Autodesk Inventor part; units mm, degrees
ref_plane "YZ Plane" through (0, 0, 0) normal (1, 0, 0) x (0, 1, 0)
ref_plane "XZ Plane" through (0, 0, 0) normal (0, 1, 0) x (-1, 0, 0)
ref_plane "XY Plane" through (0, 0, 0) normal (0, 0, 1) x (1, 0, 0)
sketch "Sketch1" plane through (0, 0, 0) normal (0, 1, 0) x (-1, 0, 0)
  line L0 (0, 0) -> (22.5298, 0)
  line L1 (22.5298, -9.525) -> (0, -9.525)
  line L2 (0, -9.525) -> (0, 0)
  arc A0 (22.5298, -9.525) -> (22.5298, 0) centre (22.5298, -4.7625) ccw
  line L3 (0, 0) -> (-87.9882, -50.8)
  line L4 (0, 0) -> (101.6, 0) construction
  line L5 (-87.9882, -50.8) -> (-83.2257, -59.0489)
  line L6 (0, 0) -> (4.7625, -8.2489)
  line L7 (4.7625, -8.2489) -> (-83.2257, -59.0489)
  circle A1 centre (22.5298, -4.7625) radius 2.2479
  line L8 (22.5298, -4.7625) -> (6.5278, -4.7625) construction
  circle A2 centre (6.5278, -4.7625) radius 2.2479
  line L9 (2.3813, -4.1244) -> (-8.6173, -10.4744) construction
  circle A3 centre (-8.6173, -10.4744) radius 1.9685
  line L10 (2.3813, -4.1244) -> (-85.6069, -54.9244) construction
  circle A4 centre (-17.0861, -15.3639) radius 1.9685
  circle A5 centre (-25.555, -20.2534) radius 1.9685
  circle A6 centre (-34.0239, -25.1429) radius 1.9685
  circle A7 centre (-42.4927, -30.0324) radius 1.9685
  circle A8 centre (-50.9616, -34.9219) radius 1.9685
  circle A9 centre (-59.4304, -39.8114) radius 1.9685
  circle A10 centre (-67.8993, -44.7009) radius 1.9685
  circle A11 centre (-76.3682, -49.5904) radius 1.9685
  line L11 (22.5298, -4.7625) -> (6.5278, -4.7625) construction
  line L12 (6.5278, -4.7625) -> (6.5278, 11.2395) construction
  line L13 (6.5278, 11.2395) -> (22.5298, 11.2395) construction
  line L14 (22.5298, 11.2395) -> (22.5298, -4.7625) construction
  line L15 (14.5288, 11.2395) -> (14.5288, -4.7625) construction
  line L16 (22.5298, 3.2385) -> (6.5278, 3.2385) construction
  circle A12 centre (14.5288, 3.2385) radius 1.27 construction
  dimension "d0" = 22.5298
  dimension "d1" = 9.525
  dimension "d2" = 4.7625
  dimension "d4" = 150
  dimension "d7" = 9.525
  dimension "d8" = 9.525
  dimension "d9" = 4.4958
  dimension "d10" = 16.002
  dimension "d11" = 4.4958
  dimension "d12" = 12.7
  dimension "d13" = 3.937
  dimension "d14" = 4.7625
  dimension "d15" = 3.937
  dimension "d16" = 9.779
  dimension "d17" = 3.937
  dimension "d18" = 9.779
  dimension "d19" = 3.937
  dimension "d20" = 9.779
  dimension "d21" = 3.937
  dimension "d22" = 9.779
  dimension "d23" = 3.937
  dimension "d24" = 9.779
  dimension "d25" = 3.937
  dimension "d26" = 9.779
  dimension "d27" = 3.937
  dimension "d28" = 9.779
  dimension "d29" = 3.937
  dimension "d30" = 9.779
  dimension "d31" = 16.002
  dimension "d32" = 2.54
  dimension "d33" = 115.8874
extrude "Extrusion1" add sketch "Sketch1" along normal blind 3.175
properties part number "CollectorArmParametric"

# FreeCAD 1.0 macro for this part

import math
import FreeCAD as App
import Part
import Sketcher

V = App.Vector
Q = App.Units.Quantity

doc = App.newDocument("Part")
body = doc.addObject("PartDesign::Body", "Body")

# Sketch on XZ plane
sketch1 = body.newObject("Sketcher::SketchObject", "Sketch")
sketch1.AttachmentSupport = (doc.getObject("XZ_Plane"), [""])
sketch1.MapMode = "FlatFace"
sketch1.addGeometry([
    Part.LineSegment(V(-22.5, 0, 0), V(0, 0, 0)),  # 0
    Part.LineSegment(V(0, 0, 0), V(88, -50.8, 0)),  # 1
    Part.LineSegment(V(88, -50.8, 0), V(83.2, -59, 0)),  # 2
    Part.LineSegment(V(83.2, -59, 0), V(-2.6, -9.5, 0)),  # 3
    Part.LineSegment(V(-2.6, -9.5, 0), V(-22.5, -9.5, 0)),  # 4
    Part.ArcOfCircle(Part.Circle(V(-22.5, -4.8, 0), V(0, 0, 1), 4.8), math.radians(90), math.radians(270)),  # 5
    Part.Circle(V(-6.5, -4.8, 0), V(0, 0, 1), 2.2),  # 6
    Part.Circle(V(-22.5, -4.8, 0), V(0, 0, 1), 2.2),  # 7
    Part.Circle(V(17.1, -15.4, 0), V(0, 0, 1), 2),  # 8
    Part.Circle(V(8.6, -10.5, 0), V(0, 0, 1), 2),  # 9
    Part.Circle(V(76.4, -49.6, 0), V(0, 0, 1), 2),  # 10
    Part.Circle(V(67.9, -44.7, 0), V(0, 0, 1), 2),  # 11
    Part.Circle(V(59.4, -39.8, 0), V(0, 0, 1), 2),  # 12
    Part.Circle(V(51, -34.9, 0), V(0, 0, 1), 2),  # 13
    Part.Circle(V(42.5, -30, 0), V(0, 0, 1), 2),  # 14
    Part.Circle(V(34, -25.1, 0), V(0, 0, 1), 2),  # 15
    Part.Circle(V(25.6, -20.3, 0), V(0, 0, 1), 2),  # 16
], False)
sketch1.addConstraint([
    Sketcher.Constraint("Coincident", 0, 2, 1, 1),
    Sketcher.Constraint("Coincident", 1, 2, 2, 1),
    Sketcher.Constraint("Coincident", 2, 2, 3, 1),
    Sketcher.Constraint("Coincident", 3, 2, 4, 1),
    Sketcher.Constraint("Tangent", 4, 2, 5, 2),
    Sketcher.Constraint("Tangent", 5, 1, 0, 1),
    Sketcher.Constraint("Horizontal", 0),
    Sketcher.Constraint("Horizontal", 4),
    Sketcher.Constraint("Coincident", 0, 2, -1, 1),
    Sketcher.Constraint("Coincident", 7, 3, 5, 3),
    Sketcher.Constraint("Equal", 6, 7),
    Sketcher.Constraint("Equal", 8, 9),
    Sketcher.Constraint("Equal", 9, 10),
    Sketcher.Constraint("Equal", 10, 11),
    Sketcher.Constraint("Equal", 11, 12),
    Sketcher.Constraint("Equal", 12, 13),
    Sketcher.Constraint("Equal", 13, 14),
    Sketcher.Constraint("Equal", 14, 15),
    Sketcher.Constraint("Equal", 15, 16),
    Sketcher.Constraint("Perpendicular", 1, 2),
    Sketcher.Constraint("Perpendicular", 2, 3),
    Sketcher.Constraint("Horizontal", 5, 3, 6, 3),
    Sketcher.Constraint("Diameter", 6, Q("0.177 in")),
    Sketcher.Constraint("Diameter", 8, Q("0.155 in")),
    Sketcher.Constraint("Angle", 3, Q("150 deg")),
    Sketcher.Constraint("Radius", 5, Q("0.1875 in")),
    Sketcher.Constraint("DistanceX", 0, 1, 0, 2, Q("0.887 in")),
    Sketcher.Constraint("DistanceX", 5, 3, 6, 3, Q("0.63 in")),
    Sketcher.Constraint("Distance", 1, Q("4 in")),
    Sketcher.Constraint("Distance", 2, Q("0.375 in")),
    Sketcher.Constraint("DistanceY", 10, 3, 12, 3, Q("0.385 in")),
    Sketcher.Constraint("DistanceY", 11, 3, 13, 3, Q("0.385 in")),
    Sketcher.Constraint("DistanceY", 12, 3, 14, 3, Q("0.385 in")),
    Sketcher.Constraint("DistanceY", 13, 3, 15, 3, Q("0.385 in")),
    Sketcher.Constraint("DistanceY", 15, 3, 8, 3, Q("0.385 in")),
    Sketcher.Constraint("DistanceY", 16, 3, 9, 3, Q("0.385 in")),
    Sketcher.Constraint("DistanceY", 14, 3, 16, 3, Q("0.385 in")),
    Sketcher.Constraint("DistanceX", -1, 1, 11, 3, Q("2.6732 in")),
    Sketcher.Constraint("DistanceX", -1, 1, 16, 3, Q("1.0061 in")),
    Sketcher.Constraint("DistanceY", 8, 3, 9, 3, Q("0.1925 in")),
    Sketcher.Constraint("DistanceX", 8, 3, 12, 3, Q("1.6671 in")),
    Sketcher.Constraint("DistanceX", 9, 3, 13, 3, Q("1.6671 in")),
    Sketcher.Constraint("DistanceX", -1, 1, 8, 3, 17.086),
    Sketcher.Constraint("DistanceY", 8, 3, -1, 1, 15.364),
    Sketcher.Constraint("DistanceX", -1, 1, 9, 3, 8.6173),
    Sketcher.Constraint("DistanceX", -1, 1, 10, 3, 76.3682),
    Sketcher.Constraint("DistanceX", -1, 1, 14, 3, 42.4927),
    Sketcher.Constraint("DistanceX", -1, 1, 15, 3, 34.024),
])
pad1 = body.newObject("PartDesign::Pad", "Pad")
pad1.Profile = sketch1
pad1.Length = Q("0.125 in")
pad1.Reversed = True

doc.recompute()
